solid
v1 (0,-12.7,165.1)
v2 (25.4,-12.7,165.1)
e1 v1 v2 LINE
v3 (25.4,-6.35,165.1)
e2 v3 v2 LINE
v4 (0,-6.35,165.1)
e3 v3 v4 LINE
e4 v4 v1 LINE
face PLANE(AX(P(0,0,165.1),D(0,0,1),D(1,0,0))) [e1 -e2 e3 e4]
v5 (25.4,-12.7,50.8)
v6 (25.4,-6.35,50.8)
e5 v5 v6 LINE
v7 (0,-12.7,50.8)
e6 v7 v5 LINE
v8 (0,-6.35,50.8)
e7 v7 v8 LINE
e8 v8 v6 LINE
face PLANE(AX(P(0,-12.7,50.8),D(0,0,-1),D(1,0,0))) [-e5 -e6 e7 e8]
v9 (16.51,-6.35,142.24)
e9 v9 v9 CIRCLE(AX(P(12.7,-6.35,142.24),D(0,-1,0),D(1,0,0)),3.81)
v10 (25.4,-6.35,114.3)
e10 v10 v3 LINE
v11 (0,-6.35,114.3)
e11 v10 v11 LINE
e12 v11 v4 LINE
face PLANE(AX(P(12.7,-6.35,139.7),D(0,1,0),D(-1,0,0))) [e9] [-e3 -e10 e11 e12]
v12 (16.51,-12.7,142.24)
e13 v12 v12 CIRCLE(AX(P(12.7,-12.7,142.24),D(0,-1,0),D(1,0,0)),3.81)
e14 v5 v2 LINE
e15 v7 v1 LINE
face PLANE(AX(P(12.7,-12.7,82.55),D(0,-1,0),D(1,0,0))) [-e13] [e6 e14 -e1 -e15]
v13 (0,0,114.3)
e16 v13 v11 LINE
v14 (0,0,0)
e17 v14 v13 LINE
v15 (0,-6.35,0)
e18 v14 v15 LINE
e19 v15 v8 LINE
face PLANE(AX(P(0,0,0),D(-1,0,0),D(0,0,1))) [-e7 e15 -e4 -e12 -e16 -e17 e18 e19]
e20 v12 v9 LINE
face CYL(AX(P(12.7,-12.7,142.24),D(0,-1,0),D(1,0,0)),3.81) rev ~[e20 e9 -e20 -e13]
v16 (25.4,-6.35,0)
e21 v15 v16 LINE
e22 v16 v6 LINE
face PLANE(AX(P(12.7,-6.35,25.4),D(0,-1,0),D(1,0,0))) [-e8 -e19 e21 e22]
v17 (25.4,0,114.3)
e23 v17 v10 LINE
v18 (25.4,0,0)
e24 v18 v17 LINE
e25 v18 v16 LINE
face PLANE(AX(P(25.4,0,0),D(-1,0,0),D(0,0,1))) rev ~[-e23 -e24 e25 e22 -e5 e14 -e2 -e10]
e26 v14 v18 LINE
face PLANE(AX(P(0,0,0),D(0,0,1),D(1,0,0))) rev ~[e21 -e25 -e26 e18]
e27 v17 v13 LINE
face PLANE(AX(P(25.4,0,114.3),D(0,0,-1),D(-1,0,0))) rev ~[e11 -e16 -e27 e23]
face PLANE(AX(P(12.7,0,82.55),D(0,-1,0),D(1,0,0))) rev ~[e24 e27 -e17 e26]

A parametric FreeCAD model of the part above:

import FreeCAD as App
import Part
import Sketcher
from FreeCAD import Vector
Q = App.Units.Quantity


def add_polygon(sketch, points):
    """Adds a closed chain of lines whose ends are joined by coincident constraints."""
    first, n = sketch.GeometryCount, len(points)
    for a, b in zip(points, points[1:] + points[:1]):
        sketch.addGeometry(Part.LineSegment(App.Vector(*a, 0), App.Vector(*b, 0)), False)
    for i in range(n):
        sketch.addConstraint(Sketcher.Constraint("Coincident", first + i, 2, first + (i + 1) % n, 1))

doc = App.newDocument("Part")
params = doc.addObject("Spreadsheet::Sheet", "Params")
for row, (alias, value) in enumerate([
    ("sketch1_width", "1 in"),
    ("sketch1_height", "6.5 in"),
    ("pad1_length", "0.5 in"),
    ("sketch2_width", "1 in"),
    ("sketch2_height", "2 in"),
    ("pad2_length", "0.25 in"),
    ("sketch3_width", "1 in"),
    ("sketch3_height", "2 in"),
    ("pocket1_length", "0.25 in"),
    ("sketch4_width", "1 in"),
    ("sketch4_height", "2 in"),
    ("pocket2_length", "0.25 in"),
    ("sketch5_diameter", "0.3 in"),
    ("pocket3_length", "1 in"),
], start=1):
    params.set(f"A{row}", alias)
    params.set(f"B{row}", "=" + value)
    params.setAlias(f"B{row}", alias)

body = doc.addObject("PartDesign::Body", "Body")

# Sketch on XZ plane
sketch1 = body.newObject("Sketcher::SketchObject", "Sketch")
sketch1.AttachmentSupport = (doc.getObject("XZ_Plane"), [""])
sketch1.MapMode = "FlatFace"
add_polygon(sketch1, [(0, 165.1), (0, 0), (25.4, 0), (25.4, 165.1)])  # lines 0-3
sketch1.addConstraint([
    Sketcher.Constraint("Vertical", 0),
    Sketcher.Constraint("Horizontal", 1),
    Sketcher.Constraint("Vertical", 2),
    Sketcher.Constraint("Horizontal", 3),
    Sketcher.Constraint("Coincident", 0, 2, -1, 1),
    Sketcher.Constraint("DistanceX", 1, 1, 1, 2, Q("1 in")),
    Sketcher.Constraint("DistanceY", 0, 2, 0, 1, Q("6.5 in")),
])
sketch1.setExpression("Constraints[9]", "Params.sketch1_width")
sketch1.setExpression("Constraints[10]", "Params.sketch1_height")
pad1 = body.newObject("PartDesign::Pad", "Pad")
pad1.Profile = sketch1
pad1.setExpression("Length", "Params.pad1_length")

# Sketch on XZ plane
sketch2 = body.newObject("Sketcher::SketchObject", "Sketch001")
sketch2.AttachmentSupport = (doc.getObject("XZ_Plane"), [""])
sketch2.MapMode = "FlatFace"
sketch2.AttachmentOffset = App.Placement(Vector(0, 0, 0.5 * 25.4), App.Rotation())
add_polygon(sketch2, [(0, 50.8), (0, 0), (25.4, 0), (25.4, 50.8)])  # lines 0-3
sketch2.addConstraint([
    Sketcher.Constraint("Vertical", 0),
    Sketcher.Constraint("Horizontal", 1),
    Sketcher.Constraint("Vertical", 2),
    Sketcher.Constraint("Horizontal", 3),
    Sketcher.Constraint("Coincident", 0, 2, -1, 1),
    Sketcher.Constraint("DistanceX", 1, 1, 1, 2, Q("1 in")),
    Sketcher.Constraint("DistanceY", 0, 2, 0, 1, Q("2 in")),
])
sketch2.setExpression("Constraints[9]", "Params.sketch2_width")
sketch2.setExpression("Constraints[10]", "Params.sketch2_height")
pad2 = body.newObject("PartDesign::Pad", "Pad001")
pad2.Profile = sketch2
pad2.setExpression("Length", "Params.pad2_length")
pad2.Reversed = True

# Sketch on XZ plane
sketch3 = body.newObject("Sketcher::SketchObject", "Sketch002")
sketch3.AttachmentSupport = (doc.getObject("XZ_Plane"), [""])
sketch3.MapMode = "FlatFace"
sketch3.AttachmentOffset = App.Placement(Vector(0, 0, 0.5 * 25.4), App.Rotation())
add_polygon(sketch3, [(0, 50.8), (0, 0), (25.4, 0), (25.4, 50.8)])  # lines 0-3
sketch3.addConstraint([
    Sketcher.Constraint("Vertical", 0),
    Sketcher.Constraint("Horizontal", 1),
    Sketcher.Constraint("Vertical", 2),
    Sketcher.Constraint("Horizontal", 3),
    Sketcher.Constraint("Coincident", 0, 2, -1, 1),
    Sketcher.Constraint("DistanceX", 1, 1, 1, 2, Q("1 in")),
    Sketcher.Constraint("DistanceY", 0, 2, 0, 1, Q("2 in")),
])
sketch3.setExpression("Constraints[9]", "Params.sketch3_width")
sketch3.setExpression("Constraints[10]", "Params.sketch3_height")
pocket1 = body.newObject("PartDesign::Pocket", "Pocket")
pocket1.Profile = sketch3
pocket1.setExpression("Length", "Params.pocket1_length")

# Sketch on XZ plane
sketch4 = body.newObject("Sketcher::SketchObject", "Sketch003")
sketch4.AttachmentSupport = (doc.getObject("XZ_Plane"), [""])
sketch4.MapMode = "FlatFace"
add_polygon(sketch4, [(25.4, 165.1), (25.4, 114.3), (0, 114.3), (0, 165.1)])  # lines 0-3
sketch4.addConstraint([
    Sketcher.Constraint("Vertical", 0),
    Sketcher.Constraint("Horizontal", 1),
    Sketcher.Constraint("Vertical", 2),
    Sketcher.Constraint("Horizontal", 3),
    Sketcher.Constraint("PointOnObject", 1, 2, -2),
    Sketcher.Constraint("DistanceX", 1, 2, 1, 1, Q("1 in")),
    Sketcher.Constraint("DistanceY", 0, 2, 0, 1, Q("2 in")),
    Sketcher.Constraint("DistanceY", -1, 1, 0, 2, Q("4.5 in")),
])
sketch4.setExpression("Constraints[9]", "Params.sketch4_width")
sketch4.setExpression("Constraints[10]", "Params.sketch4_height")
pocket2 = body.newObject("PartDesign::Pocket", "Pocket001")
pocket2.Profile = sketch4
pocket2.setExpression("Length", "Params.pocket2_length")
pocket2.Reversed = True

# Sketch on XZ plane
sketch5 = body.newObject("Sketcher::SketchObject", "Sketch004")
sketch5.AttachmentSupport = (doc.getObject("XZ_Plane"), [""])
sketch5.MapMode = "FlatFace"
sketch5.AttachmentOffset = App.Placement(Vector(0, 0, 0.5 * 25.4), App.Rotation())
sketch5.addGeometry(Part.Circle(Vector(12.7, 142.24, 0), Vector(0, 0, 1), 3.81), False)
sketch5.addConstraint([
    Sketcher.Constraint("Diameter", 0, Q("0.3 in")),
    Sketcher.Constraint("DistanceX", -1, 1, 0, 3, Q("0.5 in")),
    Sketcher.Constraint("DistanceY", -1, 1, 0, 3, Q("5.6 in")),
])
sketch5.setExpression("Constraints[0]", "Params.sketch5_diameter")
pocket3 = body.newObject("PartDesign::Pocket", "Pocket002")
pocket3.Profile = sketch5
pocket3.setExpression("Length", "Params.pocket3_length")

doc.recompute()
